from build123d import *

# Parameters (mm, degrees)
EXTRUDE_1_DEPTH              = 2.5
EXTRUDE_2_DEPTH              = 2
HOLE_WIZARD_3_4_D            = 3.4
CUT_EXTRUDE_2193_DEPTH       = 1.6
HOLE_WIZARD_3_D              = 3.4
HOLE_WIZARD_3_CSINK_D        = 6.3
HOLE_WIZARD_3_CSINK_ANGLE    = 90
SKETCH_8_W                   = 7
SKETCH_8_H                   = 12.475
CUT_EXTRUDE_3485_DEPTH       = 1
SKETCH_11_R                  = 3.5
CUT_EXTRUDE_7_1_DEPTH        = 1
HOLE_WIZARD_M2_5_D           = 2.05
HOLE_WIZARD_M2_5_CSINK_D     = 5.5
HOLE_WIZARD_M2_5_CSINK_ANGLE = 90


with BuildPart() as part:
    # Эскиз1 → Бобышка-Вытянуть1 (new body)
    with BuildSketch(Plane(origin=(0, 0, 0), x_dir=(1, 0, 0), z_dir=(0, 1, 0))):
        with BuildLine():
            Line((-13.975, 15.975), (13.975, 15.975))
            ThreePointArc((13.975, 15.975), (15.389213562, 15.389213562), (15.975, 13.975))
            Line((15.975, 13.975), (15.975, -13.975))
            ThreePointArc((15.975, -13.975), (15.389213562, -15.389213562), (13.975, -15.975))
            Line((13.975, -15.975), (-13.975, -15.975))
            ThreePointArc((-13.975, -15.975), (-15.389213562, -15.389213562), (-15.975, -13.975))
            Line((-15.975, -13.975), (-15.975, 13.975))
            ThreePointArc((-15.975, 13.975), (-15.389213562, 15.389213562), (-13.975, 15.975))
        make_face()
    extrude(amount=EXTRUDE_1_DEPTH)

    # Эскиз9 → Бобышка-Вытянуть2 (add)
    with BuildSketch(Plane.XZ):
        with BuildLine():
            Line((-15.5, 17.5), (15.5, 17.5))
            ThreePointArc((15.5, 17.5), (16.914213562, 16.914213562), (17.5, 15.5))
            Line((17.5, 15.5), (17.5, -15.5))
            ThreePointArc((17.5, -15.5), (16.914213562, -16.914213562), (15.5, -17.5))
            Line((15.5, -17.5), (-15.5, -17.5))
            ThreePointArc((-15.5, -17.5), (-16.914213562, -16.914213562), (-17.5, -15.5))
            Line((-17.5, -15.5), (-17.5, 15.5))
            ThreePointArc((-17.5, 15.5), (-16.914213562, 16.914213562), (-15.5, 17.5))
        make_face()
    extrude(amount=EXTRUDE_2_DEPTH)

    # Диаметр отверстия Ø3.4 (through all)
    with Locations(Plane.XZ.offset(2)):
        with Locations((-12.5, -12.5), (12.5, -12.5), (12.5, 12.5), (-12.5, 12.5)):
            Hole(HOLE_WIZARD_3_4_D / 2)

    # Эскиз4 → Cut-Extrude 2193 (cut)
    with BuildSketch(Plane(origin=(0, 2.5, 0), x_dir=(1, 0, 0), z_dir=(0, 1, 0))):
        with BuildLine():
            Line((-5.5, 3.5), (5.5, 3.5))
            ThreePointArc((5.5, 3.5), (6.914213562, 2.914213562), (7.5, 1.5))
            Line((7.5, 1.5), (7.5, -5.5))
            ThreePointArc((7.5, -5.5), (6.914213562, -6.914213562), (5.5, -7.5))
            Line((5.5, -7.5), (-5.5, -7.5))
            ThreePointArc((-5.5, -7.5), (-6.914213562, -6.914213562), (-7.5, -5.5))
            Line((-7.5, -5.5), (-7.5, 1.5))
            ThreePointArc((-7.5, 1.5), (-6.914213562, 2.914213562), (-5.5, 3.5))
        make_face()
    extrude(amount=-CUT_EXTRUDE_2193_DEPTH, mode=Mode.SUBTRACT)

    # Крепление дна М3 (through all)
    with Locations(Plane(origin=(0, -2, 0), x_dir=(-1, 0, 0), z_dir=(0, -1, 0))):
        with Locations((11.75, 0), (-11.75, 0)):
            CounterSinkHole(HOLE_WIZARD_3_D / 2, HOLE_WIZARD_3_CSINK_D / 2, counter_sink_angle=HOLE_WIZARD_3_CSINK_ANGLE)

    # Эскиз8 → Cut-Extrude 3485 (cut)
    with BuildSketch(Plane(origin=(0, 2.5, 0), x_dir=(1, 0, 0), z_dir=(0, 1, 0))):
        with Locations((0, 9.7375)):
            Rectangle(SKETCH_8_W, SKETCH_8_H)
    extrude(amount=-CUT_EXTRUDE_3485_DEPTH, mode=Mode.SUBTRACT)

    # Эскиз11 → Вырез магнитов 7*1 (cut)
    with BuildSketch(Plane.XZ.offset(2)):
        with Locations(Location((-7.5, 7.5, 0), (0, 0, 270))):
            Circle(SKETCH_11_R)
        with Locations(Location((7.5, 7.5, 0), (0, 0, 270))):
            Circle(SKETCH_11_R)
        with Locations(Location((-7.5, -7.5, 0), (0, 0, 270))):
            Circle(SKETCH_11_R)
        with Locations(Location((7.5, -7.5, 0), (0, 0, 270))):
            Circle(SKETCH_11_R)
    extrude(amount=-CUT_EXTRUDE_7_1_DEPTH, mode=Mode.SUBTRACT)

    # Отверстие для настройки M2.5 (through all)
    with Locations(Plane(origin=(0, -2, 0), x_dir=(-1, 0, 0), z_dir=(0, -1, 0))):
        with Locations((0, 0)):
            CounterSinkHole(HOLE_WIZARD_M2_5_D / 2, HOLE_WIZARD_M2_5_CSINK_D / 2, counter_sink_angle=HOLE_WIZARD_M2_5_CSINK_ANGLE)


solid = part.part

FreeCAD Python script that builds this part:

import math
import FreeCAD as App
import Part
import Sketcher

V = App.Vector


def add_polygon(sketch, points):
    """Adds a closed chain of lines whose ends are joined by coincident constraints."""
    first, n = sketch.GeometryCount, len(points)
    for a, b in zip(points, points[1:] + points[:1]):
        sketch.addGeometry(Part.LineSegment(App.Vector(*a, 0), App.Vector(*b, 0)), False)
    for i in range(n):
        sketch.addConstraint(Sketcher.Constraint("Coincident", first + i, 2, first + (i + 1) % n, 1))

doc = App.newDocument("Part")
body = doc.addObject("PartDesign::Body", "Body")

sketch1 = body.newObject("Sketcher::SketchObject", "Sketch")
sketch1.AttachmentSupport = (doc.getObject("XZ_Plane"), [""])
sketch1.MapMode = "FlatFace"
sketch1.addGeometry(Part.LineSegment(V(14, -16, 0), V(-14, -16, 0)), False)
sketch1.addGeometry(Part.ArcOfCircle(Part.Circle(V(-14, -14, 0), V(0, 0, 1), 2), math.radians(-180), math.radians(-90)), False)
sketch1.addGeometry(Part.LineSegment(V(-16, -14, 0), V(-16, 14, 0)), False)
sketch1.addGeometry(Part.ArcOfCircle(Part.Circle(V(-14, 14, 0), V(0, 0, 1), 2), math.radians(90), math.radians(180)), False)
sketch1.addGeometry(Part.LineSegment(V(-14, 16, 0), V(14, 16, 0)), False)
sketch1.addGeometry(Part.ArcOfCircle(Part.Circle(V(14, 14, 0), V(0, 0, 1), 2), math.radians(0), math.radians(90)), False)
sketch1.addGeometry(Part.LineSegment(V(16, 14, 0), V(16, -14, 0)), False)
sketch1.addGeometry(Part.ArcOfCircle(Part.Circle(V(14, -14, 0), V(0, 0, 1), 2), math.radians(-90), math.radians(0)), False)
sketch1.addConstraint(Sketcher.Constraint("Tangent", 0, 2, 1, 2))
sketch1.addConstraint(Sketcher.Constraint("Tangent", 1, 1, 2, 1))
sketch1.addConstraint(Sketcher.Constraint("Tangent", 2, 2, 3, 2))
sketch1.addConstraint(Sketcher.Constraint("Tangent", 3, 1, 4, 1))
sketch1.addConstraint(Sketcher.Constraint("Tangent", 4, 2, 5, 2))
sketch1.addConstraint(Sketcher.Constraint("Tangent", 5, 1, 6, 1))
sketch1.addConstraint(Sketcher.Constraint("Tangent", 6, 2, 7, 2))
sketch1.addConstraint(Sketcher.Constraint("Tangent", 7, 1, 0, 1))
sketch1.addConstraint(Sketcher.Constraint("Horizontal", 0))
sketch1.addConstraint(Sketcher.Constraint("Vertical", 2))
sketch1.addConstraint(Sketcher.Constraint("Horizontal", 4))
sketch1.addConstraint(Sketcher.Constraint("Vertical", 6))
sketch1.addConstraint(Sketcher.Constraint("Equal", 1, 3))
sketch1.addConstraint(Sketcher.Constraint("Equal", 3, 5))
sketch1.addConstraint(Sketcher.Constraint("Equal", 5, 7))
sketch1.addConstraint(Sketcher.Constraint("Symmetric", 1, 3, 5, 3, -1, 1))
sketch1.addConstraint(Sketcher.Constraint("Equal", 4, 2))
sketch1.addConstraint(Sketcher.Constraint("Radius", 1, 2.0))
sketch1.addConstraint(Sketcher.Constraint("DistanceX", 0, 2, 0, 1, 27.95))
pad1 = body.newObject("PartDesign::Pad", "Pad")
pad1.Profile = sketch1
pad1.Length = 2.5
pad1.Reversed = True

sketch2 = body.newObject("Sketcher::SketchObject", "Sketch001")
sketch2.AttachmentSupport = (doc.getObject("XZ_Plane"), [""])
sketch2.MapMode = "FlatFace"
sketch2.addGeometry(Part.LineSegment(V(15.5, 17.5, 0), V(-15.5, 17.5, 0)), False)
sketch2.addGeometry(Part.ArcOfCircle(Part.Circle(V(-15.5, 15.5, 0), V(0, 0, 1), 2), math.radians(90), math.radians(180)), False)
sketch2.addGeometry(Part.LineSegment(V(-17.5, 15.5, 0), V(-17.5, -15.5, 0)), False)
sketch2.addGeometry(Part.ArcOfCircle(Part.Circle(V(-15.5, -15.5, 0), V(0, 0, 1), 2), math.radians(-180), math.radians(-90)), False)
sketch2.addGeometry(Part.LineSegment(V(-15.5, -17.5, 0), V(15.5, -17.5, 0)), False)
sketch2.addGeometry(Part.ArcOfCircle(Part.Circle(V(15.5, -15.5, 0), V(0, 0, 1), 2), math.radians(-90), math.radians(0)), False)
sketch2.addGeometry(Part.LineSegment(V(17.5, -15.5, 0), V(17.5, 15.5, 0)), False)
sketch2.addGeometry(Part.ArcOfCircle(Part.Circle(V(15.5, 15.5, 0), V(0, 0, 1), 2), math.radians(0), math.radians(90)), False)
sketch2.addConstraint(Sketcher.Constraint("Tangent", 0, 2, 1, 1))
sketch2.addConstraint(Sketcher.Constraint("Tangent", 1, 2, 2, 1))
sketch2.addConstraint(Sketcher.Constraint("Tangent", 2, 2, 3, 1))
sketch2.addConstraint(Sketcher.Constraint("Tangent", 3, 2, 4, 1))
sketch2.addConstraint(Sketcher.Constraint("Tangent", 4, 2, 5, 1))
sketch2.addConstraint(Sketcher.Constraint("Tangent", 5, 2, 6, 1))
sketch2.addConstraint(Sketcher.Constraint("Tangent", 6, 2, 7, 1))
sketch2.addConstraint(Sketcher.Constraint("Tangent", 7, 2, 0, 1))
sketch2.addConstraint(Sketcher.Constraint("Horizontal", 0))
sketch2.addConstraint(Sketcher.Constraint("Vertical", 2))
sketch2.addConstraint(Sketcher.Constraint("Horizontal", 4))
sketch2.addConstraint(Sketcher.Constraint("Vertical", 6))
sketch2.addConstraint(Sketcher.Constraint("Equal", 1, 3))
sketch2.addConstraint(Sketcher.Constraint("Equal", 3, 5))
sketch2.addConstraint(Sketcher.Constraint("Equal", 5, 7))
sketch2.addConstraint(Sketcher.Constraint("Symmetric", 1, 3, 5, 3, -1, 1))
sketch2.addConstraint(Sketcher.Constraint("Equal", 4, 2))
sketch2.addConstraint(Sketcher.Constraint("Radius", 1, 2.0))
sketch2.addConstraint(Sketcher.Constraint("DistanceX", 0, 2, 0, 1, 31.0))
pad2 = body.newObject("PartDesign::Pad", "Pad001")
pad2.Profile = sketch2
pad2.Length = 2

sketch3 = body.newObject("Sketcher::SketchObject", "Sketch002")
sketch3.AttachmentSupport = (doc.getObject("XZ_Plane"), [""])
sketch3.MapMode = "FlatFace"
sketch3.AttachmentOffset = App.Placement(V(0, 0, 2), App.Rotation())
sketch3.addGeometry(Part.Circle(V(-12.5, -12.5, 0), V(0, 0, 1), 1.7), False)
sketch3.addGeometry(Part.Circle(V(12.5, -12.5, 0), V(0, 0, 1), 1.7), False)
sketch3.addGeometry(Part.Circle(V(12.5, 12.5, 0), V(0, 0, 1), 1.7), False)
sketch3.addGeometry(Part.Circle(V(-12.5, 12.5, 0), V(0, 0, 1), 1.7), False)
sketch3.addConstraint(Sketcher.Constraint("Equal", 0, 1))
sketch3.addConstraint(Sketcher.Constraint("Equal", 1, 2))
sketch3.addConstraint(Sketcher.Constraint("Equal", 2, 3))
sketch3.addConstraint(Sketcher.Constraint("Symmetric", 0, 3, 2, 3, -1, 1))
sketch3.addConstraint(Sketcher.Constraint("Symmetric", 1, 3, 3, 3, -1, 1))
sketch3.addConstraint(Sketcher.Constraint("Symmetric", 0, 3, 1, 3, -2))
sketch3.addConstraint(Sketcher.Constraint("Diameter", 0, 3.4))
sketch3.addConstraint(Sketcher.Constraint("DistanceX", 0, 3, 1, 3, 25.0))
sketch3.addConstraint(Sketcher.Constraint("DistanceY", 1, 3, 2, 3, 25.0))
doc.recompute()
hole = body.newObject("PartDesign::Hole", "Hole")
hole.Profile = sketch3
hole.ThreadType = "None"
hole.Diameter = 3.4
hole.DepthType = "ThroughAll"

sketch4 = body.newObject("Sketcher::SketchObject", "Sketch003")
sketch4.AttachmentSupport = (doc.getObject("XZ_Plane"), [""])
sketch4.MapMode = "FlatFace"
sketch4.AttachmentOffset = App.Placement(V(0, 0, -2.5), App.Rotation())
sketch4.addGeometry(Part.LineSegment(V(5.5, -3.5, 0), V(-5.5, -3.5, 0)), False)
sketch4.addGeometry(Part.ArcOfCircle(Part.Circle(V(-5.5, -1.5, 0), V(0, 0, 1), 2), math.radians(-180), math.radians(-90)), False)
sketch4.addGeometry(Part.LineSegment(V(-7.5, -1.5, 0), V(-7.5, 5.5, 0)), False)
sketch4.addGeometry(Part.ArcOfCircle(Part.Circle(V(-5.5, 5.5, 0), V(0, 0, 1), 2), math.radians(90), math.radians(180)), False)
sketch4.addGeometry(Part.LineSegment(V(-5.5, 7.5, 0), V(5.5, 7.5, 0)), False)
sketch4.addGeometry(Part.ArcOfCircle(Part.Circle(V(5.5, 5.5, 0), V(0, 0, 1), 2), math.radians(0), math.radians(90)), False)
sketch4.addGeometry(Part.LineSegment(V(7.5, 5.5, 0), V(7.5, -1.5, 0)), False)
sketch4.addGeometry(Part.ArcOfCircle(Part.Circle(V(5.5, -1.5, 0), V(0, 0, 1), 2), math.radians(-90), math.radians(0)), False)
sketch4.addConstraint(Sketcher.Constraint("Tangent", 0, 2, 1, 2))
sketch4.addConstraint(Sketcher.Constraint("Tangent", 1, 1, 2, 1))
sketch4.addConstraint(Sketcher.Constraint("Tangent", 2, 2, 3, 2))
sketch4.addConstraint(Sketcher.Constraint("Tangent", 3, 1, 4, 1))
sketch4.addConstraint(Sketcher.Constraint("Tangent", 4, 2, 5, 2))
sketch4.addConstraint(Sketcher.Constraint("Tangent", 5, 1, 6, 1))
sketch4.addConstraint(Sketcher.Constraint("Tangent", 6, 2, 7, 2))
sketch4.addConstraint(Sketcher.Constraint("Tangent", 7, 1, 0, 1))
sketch4.addConstraint(Sketcher.Constraint("Horizontal", 0))
sketch4.addConstraint(Sketcher.Constraint("Vertical", 2))
sketch4.addConstraint(Sketcher.Constraint("Horizontal", 4))
sketch4.addConstraint(Sketcher.Constraint("Vertical", 6))
sketch4.addConstraint(Sketcher.Constraint("Equal", 1, 3))
sketch4.addConstraint(Sketcher.Constraint("Equal", 3, 5))
sketch4.addConstraint(Sketcher.Constraint("Equal", 5, 7))
sketch4.addConstraint(Sketcher.Constraint("Radius", 1, 2.0))
sketch4.addConstraint(Sketcher.Constraint("DistanceX", 0, 2, 0, 1, 11.0))
sketch4.addConstraint(Sketcher.Constraint("DistanceY", 2, 1, 2, 2, 7.0))
sketch4.addConstraint(Sketcher.Constraint("DistanceX", 1, 3, -1, 1, 5.5))
sketch4.addConstraint(Sketcher.Constraint("DistanceY", 1, 3, -1, 1, 1.5))
pocket1 = body.newObject("PartDesign::Pocket", "Pocket")
pocket1.Profile = sketch4
pocket1.Length = 1.6
pocket1.Reversed = True

sketch5 = body.newObject("Sketcher::SketchObject", "Sketch004")
sketch5.AttachmentSupport = (doc.getObject("XZ_Plane"), [""])
sketch5.MapMode = "FlatFace"
sketch5.AttachmentOffset = App.Placement(V(0, 0, 2), App.Rotation())
sketch5.addGeometry(Part.Circle(V(-11.8, 0, 0), V(0, 0, 1), 1.7), False)
sketch5.addGeometry(Part.Circle(V(11.8, 0, 0), V(0, 0, 1), 1.7), False)
sketch5.addConstraint(Sketcher.Constraint("Equal", 0, 1))
sketch5.addConstraint(Sketcher.Constraint("Symmetric", 0, 3, 1, 3, -1, 1))
sketch5.addConstraint(Sketcher.Constraint("PointOnObject", 0, 3, -1))
sketch5.addConstraint(Sketcher.Constraint("Diameter", 0, 3.4))
sketch5.addConstraint(Sketcher.Constraint("DistanceX", 0, 3, 1, 3, 23.5))
doc.recompute()
hole2 = body.newObject("PartDesign::Hole", "Hole001")
hole2.Profile = sketch5
hole2.ThreadType = "None"
hole2.Diameter = 3.4
hole2.DepthType = "ThroughAll"
hole2.HoleCutType = "Countersink"
hole2.HoleCutDiameter = 6.3
hole2.HoleCutCountersinkAngle = 90

sketch6 = body.newObject("Sketcher::SketchObject", "Sketch005")
sketch6.AttachmentSupport = (doc.getObject("XZ_Plane"), [""])
sketch6.MapMode = "FlatFace"
sketch6.AttachmentOffset = App.Placement(V(0, 0, -2.5), App.Rotation())
add_polygon(sketch6, [(-4, -16), (-4, -4), (4, -4), (4, -16)])
sketch6.addConstraint(Sketcher.Constraint("Vertical", 0))
sketch6.addConstraint(Sketcher.Constraint("Horizontal", 1))
sketch6.addConstraint(Sketcher.Constraint("Vertical", 2))
sketch6.addConstraint(Sketcher.Constraint("Horizontal", 3))
sketch6.addConstraint(Sketcher.Constraint("DistanceX", 1, 1, 1, 2, 7.0))
sketch6.addConstraint(Sketcher.Constraint("DistanceX", 0, 2, -1, 1, 3.5))
sketch6.addConstraint(Sketcher.Constraint("DistanceY", 0, 2, -1, 1, 3.5))
sketch6.addConstraint(Sketcher.Constraint("DistanceY", 0, 1, 0, 2, 12.475))
pocket2 = body.newObject("PartDesign::Pocket", "Pocket001")
pocket2.Profile = sketch6
pocket2.Length = 1
pocket2.Reversed = True

sketch7 = body.newObject("Sketcher::SketchObject", "Sketch006")
sketch7.AttachmentSupport = (doc.getObject("XZ_Plane"), [""])
sketch7.MapMode = "FlatFace"
sketch7.AttachmentOffset = App.Placement(V(0, 0, 2), App.Rotation())
sketch7.addGeometry(Part.Circle(V(-7.5, 7.5, 0), V(0, 0, 1), 3.5), False)
sketch7.addGeometry(Part.Circle(V(7.5, 7.5, 0), V(0, 0, 1), 3.5), False)
sketch7.addGeometry(Part.Circle(V(-7.5, -7.5, 0), V(0, 0, 1), 3.5), False)
sketch7.addGeometry(Part.Circle(V(7.5, -7.5, 0), V(0, 0, 1), 3.5), False)
sketch7.addConstraint(Sketcher.Constraint("Equal", 0, 1))
sketch7.addConstraint(Sketcher.Constraint("Equal", 1, 2))
sketch7.addConstraint(Sketcher.Constraint("Equal", 2, 3))
sketch7.addConstraint(Sketcher.Constraint("Symmetric", 1, 3, 2, 3, -1, 1))
sketch7.addConstraint(Sketcher.Constraint("Symmetric", 0, 3, 3, 3, -1, 1))
sketch7.addConstraint(Sketcher.Constraint("Symmetric", 0, 3, 1, 3, -2))
sketch7.addConstraint(Sketcher.Constraint("Diameter", 0, 7.0))
sketch7.addConstraint(Sketcher.Constraint("DistanceX", 0, 3, 1, 3, 15.0))
sketch7.addConstraint(Sketcher.Constraint("DistanceY", 2, 3, 0, 3, 15.0))
pocket3 = body.newObject("PartDesign::Pocket", "Pocket002")
pocket3.Profile = sketch7
pocket3.Length = 1

sketch8 = body.newObject("Sketcher::SketchObject", "Sketch007")
sketch8.AttachmentSupport = (doc.getObject("XZ_Plane"), [""])
sketch8.MapMode = "FlatFace"
sketch8.AttachmentOffset = App.Placement(V(0, 0, 2), App.Rotation())
sketch8.addGeometry(Part.Circle(V(0, 0, 0), V(0, 0, 1), 1), False)
sketch8.addConstraint(Sketcher.Constraint("Coincident", 0, 3, -1, 1))
sketch8.addConstraint(Sketcher.Constraint("Diameter", 0, 2.05))
doc.recompute()
hole3 = body.newObject("PartDesign::Hole", "Hole002")
hole3.Profile = sketch8
hole3.ThreadType = "None"
hole3.Diameter = 2.05
hole3.DepthType = "ThroughAll"
hole3.HoleCutType = "Countersink"
hole3.HoleCutDiameter = 5.5
hole3.HoleCutCountersinkAngle = 90

doc.recompute()
